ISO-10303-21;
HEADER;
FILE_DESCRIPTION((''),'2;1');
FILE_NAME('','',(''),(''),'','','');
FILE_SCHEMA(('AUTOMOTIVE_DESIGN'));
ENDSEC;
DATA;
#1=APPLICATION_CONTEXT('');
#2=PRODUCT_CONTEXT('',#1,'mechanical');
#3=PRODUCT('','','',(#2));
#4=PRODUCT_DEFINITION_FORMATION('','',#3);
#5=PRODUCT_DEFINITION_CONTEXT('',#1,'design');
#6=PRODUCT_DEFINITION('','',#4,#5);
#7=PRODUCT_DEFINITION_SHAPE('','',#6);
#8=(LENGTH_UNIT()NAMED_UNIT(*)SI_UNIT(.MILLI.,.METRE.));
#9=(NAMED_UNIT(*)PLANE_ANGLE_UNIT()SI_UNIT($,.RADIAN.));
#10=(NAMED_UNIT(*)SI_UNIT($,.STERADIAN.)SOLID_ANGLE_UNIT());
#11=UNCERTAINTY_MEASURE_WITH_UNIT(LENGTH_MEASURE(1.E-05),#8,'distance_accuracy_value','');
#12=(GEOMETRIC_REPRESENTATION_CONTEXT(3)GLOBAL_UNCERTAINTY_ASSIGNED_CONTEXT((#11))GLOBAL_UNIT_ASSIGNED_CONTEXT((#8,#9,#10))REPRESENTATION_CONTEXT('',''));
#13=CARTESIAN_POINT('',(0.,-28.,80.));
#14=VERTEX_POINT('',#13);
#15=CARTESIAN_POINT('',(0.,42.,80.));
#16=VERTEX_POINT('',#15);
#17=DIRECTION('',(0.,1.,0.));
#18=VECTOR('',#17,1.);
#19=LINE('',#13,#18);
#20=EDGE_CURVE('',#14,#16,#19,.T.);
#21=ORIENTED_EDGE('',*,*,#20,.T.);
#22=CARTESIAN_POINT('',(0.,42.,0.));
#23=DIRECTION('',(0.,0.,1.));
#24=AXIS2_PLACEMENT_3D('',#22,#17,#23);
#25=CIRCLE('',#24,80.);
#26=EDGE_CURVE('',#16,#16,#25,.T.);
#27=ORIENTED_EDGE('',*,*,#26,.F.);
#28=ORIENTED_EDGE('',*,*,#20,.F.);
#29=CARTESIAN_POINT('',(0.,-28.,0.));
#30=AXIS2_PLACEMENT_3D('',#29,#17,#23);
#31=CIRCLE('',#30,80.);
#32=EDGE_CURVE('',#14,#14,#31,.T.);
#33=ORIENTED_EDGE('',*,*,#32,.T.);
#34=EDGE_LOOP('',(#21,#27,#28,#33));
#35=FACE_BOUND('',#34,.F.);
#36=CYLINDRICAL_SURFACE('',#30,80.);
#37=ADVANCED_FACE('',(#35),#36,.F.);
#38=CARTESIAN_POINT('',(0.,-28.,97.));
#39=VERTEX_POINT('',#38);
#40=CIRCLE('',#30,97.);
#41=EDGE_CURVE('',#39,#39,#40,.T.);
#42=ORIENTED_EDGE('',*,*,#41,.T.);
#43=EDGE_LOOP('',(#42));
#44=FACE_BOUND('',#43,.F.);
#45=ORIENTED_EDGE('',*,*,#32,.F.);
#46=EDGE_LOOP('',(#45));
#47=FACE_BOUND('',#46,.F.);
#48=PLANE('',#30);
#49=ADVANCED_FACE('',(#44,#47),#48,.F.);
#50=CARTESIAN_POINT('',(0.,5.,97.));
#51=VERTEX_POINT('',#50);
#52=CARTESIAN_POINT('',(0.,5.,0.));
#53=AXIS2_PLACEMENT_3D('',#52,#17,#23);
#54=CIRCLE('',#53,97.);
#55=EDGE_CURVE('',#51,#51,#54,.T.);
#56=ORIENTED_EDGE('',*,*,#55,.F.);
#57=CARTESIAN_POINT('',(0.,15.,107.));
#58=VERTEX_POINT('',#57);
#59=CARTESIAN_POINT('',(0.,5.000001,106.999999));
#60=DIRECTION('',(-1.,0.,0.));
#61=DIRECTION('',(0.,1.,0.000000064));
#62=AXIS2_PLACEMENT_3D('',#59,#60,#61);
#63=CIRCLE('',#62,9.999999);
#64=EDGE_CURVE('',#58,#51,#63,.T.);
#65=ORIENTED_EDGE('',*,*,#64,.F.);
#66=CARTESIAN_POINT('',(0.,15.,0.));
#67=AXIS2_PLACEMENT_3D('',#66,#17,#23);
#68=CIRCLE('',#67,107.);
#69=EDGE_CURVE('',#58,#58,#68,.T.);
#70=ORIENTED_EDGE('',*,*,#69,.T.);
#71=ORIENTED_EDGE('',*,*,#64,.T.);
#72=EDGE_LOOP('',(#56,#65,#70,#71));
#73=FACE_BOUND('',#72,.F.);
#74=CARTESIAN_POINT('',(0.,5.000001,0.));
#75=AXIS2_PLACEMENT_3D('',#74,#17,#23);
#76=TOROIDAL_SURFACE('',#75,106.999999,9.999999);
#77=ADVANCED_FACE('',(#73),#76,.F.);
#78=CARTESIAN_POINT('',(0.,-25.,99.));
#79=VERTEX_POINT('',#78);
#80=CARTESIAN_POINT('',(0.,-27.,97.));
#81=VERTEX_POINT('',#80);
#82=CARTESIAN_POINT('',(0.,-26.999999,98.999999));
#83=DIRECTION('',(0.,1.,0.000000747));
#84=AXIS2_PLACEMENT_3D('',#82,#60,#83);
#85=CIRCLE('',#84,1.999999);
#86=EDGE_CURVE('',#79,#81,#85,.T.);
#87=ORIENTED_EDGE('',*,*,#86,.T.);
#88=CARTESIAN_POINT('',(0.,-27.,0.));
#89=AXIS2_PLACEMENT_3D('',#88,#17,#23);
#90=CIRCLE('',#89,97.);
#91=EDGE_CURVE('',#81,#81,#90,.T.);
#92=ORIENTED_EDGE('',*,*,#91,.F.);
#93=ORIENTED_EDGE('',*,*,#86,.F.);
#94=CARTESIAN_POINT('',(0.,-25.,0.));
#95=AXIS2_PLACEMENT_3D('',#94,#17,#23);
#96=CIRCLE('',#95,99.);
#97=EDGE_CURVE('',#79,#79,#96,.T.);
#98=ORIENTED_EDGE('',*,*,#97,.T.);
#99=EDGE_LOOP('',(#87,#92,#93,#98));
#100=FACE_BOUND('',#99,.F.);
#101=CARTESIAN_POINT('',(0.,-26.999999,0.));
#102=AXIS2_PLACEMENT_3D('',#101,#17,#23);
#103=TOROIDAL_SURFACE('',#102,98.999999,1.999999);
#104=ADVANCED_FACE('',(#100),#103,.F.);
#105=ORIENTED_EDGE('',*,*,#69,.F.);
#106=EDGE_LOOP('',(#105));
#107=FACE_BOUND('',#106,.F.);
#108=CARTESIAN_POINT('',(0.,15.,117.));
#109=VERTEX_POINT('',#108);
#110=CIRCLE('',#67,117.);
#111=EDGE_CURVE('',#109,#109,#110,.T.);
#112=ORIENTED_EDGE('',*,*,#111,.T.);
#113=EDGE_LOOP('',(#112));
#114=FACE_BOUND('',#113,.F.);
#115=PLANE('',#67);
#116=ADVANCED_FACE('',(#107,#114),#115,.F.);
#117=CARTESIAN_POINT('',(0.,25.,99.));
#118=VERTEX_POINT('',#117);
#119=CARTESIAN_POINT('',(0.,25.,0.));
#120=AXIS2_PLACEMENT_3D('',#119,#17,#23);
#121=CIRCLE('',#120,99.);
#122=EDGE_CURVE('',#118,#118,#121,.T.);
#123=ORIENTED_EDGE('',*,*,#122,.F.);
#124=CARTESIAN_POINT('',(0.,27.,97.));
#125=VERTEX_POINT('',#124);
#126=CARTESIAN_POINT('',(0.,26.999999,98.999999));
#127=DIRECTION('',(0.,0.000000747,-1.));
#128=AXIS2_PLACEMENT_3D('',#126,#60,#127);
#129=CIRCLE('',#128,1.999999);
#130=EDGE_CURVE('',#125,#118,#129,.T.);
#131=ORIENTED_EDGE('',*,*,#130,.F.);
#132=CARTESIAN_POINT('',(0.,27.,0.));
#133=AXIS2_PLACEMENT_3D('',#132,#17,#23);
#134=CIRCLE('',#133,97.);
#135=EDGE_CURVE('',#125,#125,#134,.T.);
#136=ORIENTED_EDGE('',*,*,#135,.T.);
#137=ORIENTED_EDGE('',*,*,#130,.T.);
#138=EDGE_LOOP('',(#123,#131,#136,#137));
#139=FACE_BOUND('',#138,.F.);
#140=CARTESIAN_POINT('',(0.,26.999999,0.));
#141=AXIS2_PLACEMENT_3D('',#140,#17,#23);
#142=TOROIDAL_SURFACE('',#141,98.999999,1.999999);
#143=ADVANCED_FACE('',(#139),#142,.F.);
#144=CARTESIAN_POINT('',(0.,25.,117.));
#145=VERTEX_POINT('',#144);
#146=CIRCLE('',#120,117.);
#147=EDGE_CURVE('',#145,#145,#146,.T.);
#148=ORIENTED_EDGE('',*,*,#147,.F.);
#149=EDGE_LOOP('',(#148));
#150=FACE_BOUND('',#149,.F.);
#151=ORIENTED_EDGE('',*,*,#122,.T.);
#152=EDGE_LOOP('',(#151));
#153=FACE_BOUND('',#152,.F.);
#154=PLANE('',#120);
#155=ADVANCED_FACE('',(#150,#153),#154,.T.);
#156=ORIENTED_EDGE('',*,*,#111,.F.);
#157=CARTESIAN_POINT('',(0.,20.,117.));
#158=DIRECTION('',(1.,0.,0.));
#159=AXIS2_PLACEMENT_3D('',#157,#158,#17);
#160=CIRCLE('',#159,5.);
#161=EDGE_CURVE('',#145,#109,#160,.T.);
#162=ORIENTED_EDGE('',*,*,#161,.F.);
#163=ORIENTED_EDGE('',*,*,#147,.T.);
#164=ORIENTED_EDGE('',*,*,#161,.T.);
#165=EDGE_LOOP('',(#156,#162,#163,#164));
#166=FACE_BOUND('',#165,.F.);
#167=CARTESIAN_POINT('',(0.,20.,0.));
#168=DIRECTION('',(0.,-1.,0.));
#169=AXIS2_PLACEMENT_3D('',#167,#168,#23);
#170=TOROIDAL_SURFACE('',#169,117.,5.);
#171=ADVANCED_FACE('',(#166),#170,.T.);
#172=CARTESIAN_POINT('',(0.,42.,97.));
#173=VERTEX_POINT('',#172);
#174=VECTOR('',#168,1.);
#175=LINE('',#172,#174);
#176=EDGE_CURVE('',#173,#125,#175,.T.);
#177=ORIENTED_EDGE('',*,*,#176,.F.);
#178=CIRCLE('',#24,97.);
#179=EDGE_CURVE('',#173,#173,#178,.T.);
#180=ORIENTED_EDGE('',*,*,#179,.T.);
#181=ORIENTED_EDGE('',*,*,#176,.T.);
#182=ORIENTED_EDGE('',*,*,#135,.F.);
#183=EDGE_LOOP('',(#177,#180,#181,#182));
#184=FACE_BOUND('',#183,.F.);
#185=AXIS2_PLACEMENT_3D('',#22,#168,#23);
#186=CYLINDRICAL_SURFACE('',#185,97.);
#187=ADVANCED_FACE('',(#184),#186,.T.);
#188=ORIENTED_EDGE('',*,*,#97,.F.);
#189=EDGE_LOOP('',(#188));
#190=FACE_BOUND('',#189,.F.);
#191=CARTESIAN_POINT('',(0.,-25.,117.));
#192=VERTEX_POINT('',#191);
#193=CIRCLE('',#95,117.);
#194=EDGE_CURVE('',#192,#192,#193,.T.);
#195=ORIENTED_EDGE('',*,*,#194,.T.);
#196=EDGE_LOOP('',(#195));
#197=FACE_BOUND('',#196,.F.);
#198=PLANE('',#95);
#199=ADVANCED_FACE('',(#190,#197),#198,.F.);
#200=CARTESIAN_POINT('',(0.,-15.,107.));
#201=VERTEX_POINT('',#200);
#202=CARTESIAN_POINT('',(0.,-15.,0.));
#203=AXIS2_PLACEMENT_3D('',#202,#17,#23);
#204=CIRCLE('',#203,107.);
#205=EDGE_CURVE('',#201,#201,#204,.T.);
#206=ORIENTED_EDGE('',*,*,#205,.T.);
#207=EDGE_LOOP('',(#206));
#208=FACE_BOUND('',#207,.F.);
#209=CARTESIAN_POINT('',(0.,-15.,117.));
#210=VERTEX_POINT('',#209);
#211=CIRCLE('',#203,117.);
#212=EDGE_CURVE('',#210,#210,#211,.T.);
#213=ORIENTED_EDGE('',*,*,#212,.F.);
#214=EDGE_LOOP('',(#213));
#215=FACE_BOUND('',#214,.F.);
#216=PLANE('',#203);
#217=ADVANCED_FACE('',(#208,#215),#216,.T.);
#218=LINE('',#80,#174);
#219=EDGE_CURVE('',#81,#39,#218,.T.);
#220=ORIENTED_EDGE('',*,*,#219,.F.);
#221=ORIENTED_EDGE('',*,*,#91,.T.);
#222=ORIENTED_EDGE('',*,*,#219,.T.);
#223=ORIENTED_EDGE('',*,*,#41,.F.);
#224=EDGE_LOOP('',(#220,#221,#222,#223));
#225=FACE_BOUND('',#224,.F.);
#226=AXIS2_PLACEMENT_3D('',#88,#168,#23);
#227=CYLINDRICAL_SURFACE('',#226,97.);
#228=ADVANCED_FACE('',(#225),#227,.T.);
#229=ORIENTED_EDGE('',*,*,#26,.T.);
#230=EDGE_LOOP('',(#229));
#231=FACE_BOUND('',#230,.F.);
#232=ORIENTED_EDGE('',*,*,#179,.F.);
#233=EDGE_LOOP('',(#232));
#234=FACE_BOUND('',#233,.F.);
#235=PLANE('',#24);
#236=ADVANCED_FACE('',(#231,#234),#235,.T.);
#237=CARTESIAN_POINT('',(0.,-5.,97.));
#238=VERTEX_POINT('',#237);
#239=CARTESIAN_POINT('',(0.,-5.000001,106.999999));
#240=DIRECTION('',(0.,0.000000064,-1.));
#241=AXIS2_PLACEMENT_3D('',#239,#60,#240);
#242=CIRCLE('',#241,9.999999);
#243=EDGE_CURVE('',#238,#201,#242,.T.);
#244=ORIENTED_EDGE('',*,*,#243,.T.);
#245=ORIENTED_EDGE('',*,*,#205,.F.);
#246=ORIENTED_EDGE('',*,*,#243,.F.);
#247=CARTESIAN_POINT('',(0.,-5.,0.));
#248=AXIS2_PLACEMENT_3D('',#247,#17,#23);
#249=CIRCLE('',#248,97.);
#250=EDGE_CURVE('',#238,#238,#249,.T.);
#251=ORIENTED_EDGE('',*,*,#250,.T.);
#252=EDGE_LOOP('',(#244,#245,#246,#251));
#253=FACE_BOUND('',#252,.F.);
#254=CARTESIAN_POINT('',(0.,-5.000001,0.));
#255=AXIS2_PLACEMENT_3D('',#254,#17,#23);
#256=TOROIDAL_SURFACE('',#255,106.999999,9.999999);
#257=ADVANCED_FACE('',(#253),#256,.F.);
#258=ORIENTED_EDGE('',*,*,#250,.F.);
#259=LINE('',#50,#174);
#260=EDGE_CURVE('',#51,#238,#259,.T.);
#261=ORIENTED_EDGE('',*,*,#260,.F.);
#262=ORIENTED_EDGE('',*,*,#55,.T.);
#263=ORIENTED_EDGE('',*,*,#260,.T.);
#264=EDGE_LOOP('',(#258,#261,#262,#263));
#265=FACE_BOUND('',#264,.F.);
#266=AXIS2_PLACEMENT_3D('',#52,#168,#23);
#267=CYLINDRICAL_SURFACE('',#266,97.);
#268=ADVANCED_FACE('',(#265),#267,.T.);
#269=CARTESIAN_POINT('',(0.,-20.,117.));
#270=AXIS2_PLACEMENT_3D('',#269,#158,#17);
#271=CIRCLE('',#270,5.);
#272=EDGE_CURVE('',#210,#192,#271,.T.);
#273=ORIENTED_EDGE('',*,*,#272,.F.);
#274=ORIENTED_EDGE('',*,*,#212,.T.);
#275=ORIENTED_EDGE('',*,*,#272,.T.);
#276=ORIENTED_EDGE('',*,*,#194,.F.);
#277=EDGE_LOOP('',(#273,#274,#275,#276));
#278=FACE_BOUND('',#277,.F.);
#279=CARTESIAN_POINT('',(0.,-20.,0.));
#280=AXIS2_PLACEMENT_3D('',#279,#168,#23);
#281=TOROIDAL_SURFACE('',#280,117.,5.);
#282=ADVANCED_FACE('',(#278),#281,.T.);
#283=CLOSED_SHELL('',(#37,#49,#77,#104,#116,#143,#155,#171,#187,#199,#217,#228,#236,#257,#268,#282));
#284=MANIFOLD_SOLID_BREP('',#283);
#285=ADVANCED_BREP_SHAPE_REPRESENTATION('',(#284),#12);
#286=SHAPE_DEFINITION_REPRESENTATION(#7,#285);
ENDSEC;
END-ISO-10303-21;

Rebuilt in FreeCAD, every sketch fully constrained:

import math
import FreeCAD as App
import Part
import Sketcher
from FreeCAD import Vector

doc = App.newDocument("Part")
body = doc.addObject("PartDesign::Body", "Body")

# Sketch on YZ plane
sketch1 = body.newObject("Sketcher::SketchObject", "Sketch")
sketch1.AttachmentSupport = (doc.getObject("YZ_Plane"), [""])
sketch1.MapMode = "FlatFace"
sketch1.addGeometry(Part.LineSegment(Vector(5, 97, 0), Vector(-5, 97, 0)), False)
sketch1.addGeometry(Part.ArcOfCircle(Part.Circle(Vector(-5.000001, 106.999999, 0), Vector(0, 0, 1), 9.999999), math.radians(179.999996), math.radians(270.000004)), False)
sketch1.addGeometry(Part.LineSegment(Vector(-15, 107, 0), Vector(-15, 117, 0)), False)
sketch1.addGeometry(Part.ArcOfCircle(Part.Circle(Vector(-20, 117, 0), Vector(0, 0, 1), 5), math.radians(0), math.radians(180)), False)
sketch1.addGeometry(Part.LineSegment(Vector(-25, 117, 0), Vector(-25, 99, 0)), False)
sketch1.addGeometry(Part.ArcOfCircle(Part.Circle(Vector(-26.999999, 98.999999, 0), Vector(0, 0, 1), 1.999999), math.radians(-90.000043), math.radians(0.000043)), False)
sketch1.addGeometry(Part.LineSegment(Vector(-27, 97, 0), Vector(-28, 97, 0)), False)
sketch1.addGeometry(Part.LineSegment(Vector(-28, 97, 0), Vector(-28, 80, 0)), False)
sketch1.addGeometry(Part.LineSegment(Vector(-28, 80, 0), Vector(42, 80, 0)), False)
sketch1.addGeometry(Part.LineSegment(Vector(42, 80, 0), Vector(42, 97, 0)), False)
sketch1.addGeometry(Part.LineSegment(Vector(42, 97, 0), Vector(27, 97, 0)), False)
sketch1.addGeometry(Part.ArcOfCircle(Part.Circle(Vector(26.999999, 98.999999, 0), Vector(0, 0, 1), 1.999999), math.radians(179.999957), math.radians(270.000043)), False)
sketch1.addGeometry(Part.LineSegment(Vector(25, 99, 0), Vector(25, 117, 0)), False)
sketch1.addGeometry(Part.ArcOfCircle(Part.Circle(Vector(20, 117, 0), Vector(0, 0, 1), 5), math.radians(0), math.radians(180)), False)
sketch1.addGeometry(Part.LineSegment(Vector(15, 117, 0), Vector(15, 107, 0)), False)
sketch1.addGeometry(Part.ArcOfCircle(Part.Circle(Vector(5.000001, 106.999999, 0), Vector(0, 0, 1), 9.999999), math.radians(-90.000004), math.radians(0.000004)), False)
sketch1.addConstraint(Sketcher.Constraint("Tangent", 0, 2, 1, 2))
sketch1.addConstraint(Sketcher.Constraint("Tangent", 1, 1, 2, 1))
sketch1.addConstraint(Sketcher.Constraint("Tangent", 2, 2, 3, 1))
sketch1.addConstraint(Sketcher.Constraint("Tangent", 3, 2, 4, 1))
sketch1.addConstraint(Sketcher.Constraint("Tangent", 4, 2, 5, 2))
sketch1.addConstraint(Sketcher.Constraint("Tangent", 5, 1, 6, 1))
sketch1.addConstraint(Sketcher.Constraint("Coincident", 6, 2, 7, 1))
sketch1.addConstraint(Sketcher.Constraint("Coincident", 7, 2, 8, 1))
sketch1.addConstraint(Sketcher.Constraint("Coincident", 8, 2, 9, 1))
sketch1.addConstraint(Sketcher.Constraint("Coincident", 9, 2, 10, 1))
sketch1.addConstraint(Sketcher.Constraint("Tangent", 10, 2, 11, 2))
sketch1.addConstraint(Sketcher.Constraint("Tangent", 11, 1, 12, 1))
sketch1.addConstraint(Sketcher.Constraint("Tangent", 12, 2, 13, 1))
sketch1.addConstraint(Sketcher.Constraint("Tangent", 13, 2, 14, 1))
sketch1.addConstraint(Sketcher.Constraint("Tangent", 14, 2, 15, 2))
sketch1.addConstraint(Sketcher.Constraint("Tangent", 15, 1, 0, 1))
sketch1.addConstraint(Sketcher.Constraint("Horizontal", 0))
sketch1.addConstraint(Sketcher.Constraint("Vertical", 2))
sketch1.addConstraint(Sketcher.Constraint("Vertical", 4))
sketch1.addConstraint(Sketcher.Constraint("Horizontal", 6))
sketch1.addConstraint(Sketcher.Constraint("Vertical", 7))
sketch1.addConstraint(Sketcher.Constraint("Horizontal", 8))
sketch1.addConstraint(Sketcher.Constraint("Vertical", 9))
sketch1.addConstraint(Sketcher.Constraint("Horizontal", 10))
sketch1.addConstraint(Sketcher.Constraint("Vertical", 12))
sketch1.addConstraint(Sketcher.Constraint("Vertical", 14))
sketch1.addConstraint(Sketcher.Constraint("Equal", 5, 11))
sketch1.addConstraint(Sketcher.Constraint("Equal", 3, 13))
sketch1.addConstraint(Sketcher.Constraint("Equal", 1, 15))
sketch1.addConstraint(Sketcher.Constraint("Symmetric", 5, 3, 11, 3, -2))
sketch1.addConstraint(Sketcher.Constraint("Horizontal", 3, 3, 13, 3))
sketch1.addConstraint(Sketcher.Constraint("Horizontal", 0, 2, 5, 1))
sketch1.addConstraint(Sketcher.Constraint("Equal", 0, 2))
sketch1.addConstraint(Sketcher.Constraint("Radius", 1, 9.999999))
sketch1.addConstraint(Sketcher.Constraint("Radius", 3, 5.0))
sketch1.addConstraint(Sketcher.Constraint("Radius", 5, 1.999999))
sketch1.addConstraint(Sketcher.Constraint("DistanceX", 0, 2, 0, 1, 10.0))
sketch1.addConstraint(Sketcher.Constraint("DistanceX", 6, 2, 6, 1, 1.0))
sketch1.addConstraint(Sketcher.Constraint("DistanceX", 8, 1, 8, 2, 70.0))
sketch1.addConstraint(Sketcher.Constraint("DistanceY", 7, 2, 7, 1, 17.0))
sketch1.addConstraint(Sketcher.Constraint("DistanceY", -1, 1, 1, 3, 106.999999))
revolution = body.newObject("PartDesign::Revolution", "Revolution")
revolution.Profile = sketch1
revolution.ReferenceAxis = (sketch1, ["H_Axis"])
revolution.Angle = 360

doc.recompute()
